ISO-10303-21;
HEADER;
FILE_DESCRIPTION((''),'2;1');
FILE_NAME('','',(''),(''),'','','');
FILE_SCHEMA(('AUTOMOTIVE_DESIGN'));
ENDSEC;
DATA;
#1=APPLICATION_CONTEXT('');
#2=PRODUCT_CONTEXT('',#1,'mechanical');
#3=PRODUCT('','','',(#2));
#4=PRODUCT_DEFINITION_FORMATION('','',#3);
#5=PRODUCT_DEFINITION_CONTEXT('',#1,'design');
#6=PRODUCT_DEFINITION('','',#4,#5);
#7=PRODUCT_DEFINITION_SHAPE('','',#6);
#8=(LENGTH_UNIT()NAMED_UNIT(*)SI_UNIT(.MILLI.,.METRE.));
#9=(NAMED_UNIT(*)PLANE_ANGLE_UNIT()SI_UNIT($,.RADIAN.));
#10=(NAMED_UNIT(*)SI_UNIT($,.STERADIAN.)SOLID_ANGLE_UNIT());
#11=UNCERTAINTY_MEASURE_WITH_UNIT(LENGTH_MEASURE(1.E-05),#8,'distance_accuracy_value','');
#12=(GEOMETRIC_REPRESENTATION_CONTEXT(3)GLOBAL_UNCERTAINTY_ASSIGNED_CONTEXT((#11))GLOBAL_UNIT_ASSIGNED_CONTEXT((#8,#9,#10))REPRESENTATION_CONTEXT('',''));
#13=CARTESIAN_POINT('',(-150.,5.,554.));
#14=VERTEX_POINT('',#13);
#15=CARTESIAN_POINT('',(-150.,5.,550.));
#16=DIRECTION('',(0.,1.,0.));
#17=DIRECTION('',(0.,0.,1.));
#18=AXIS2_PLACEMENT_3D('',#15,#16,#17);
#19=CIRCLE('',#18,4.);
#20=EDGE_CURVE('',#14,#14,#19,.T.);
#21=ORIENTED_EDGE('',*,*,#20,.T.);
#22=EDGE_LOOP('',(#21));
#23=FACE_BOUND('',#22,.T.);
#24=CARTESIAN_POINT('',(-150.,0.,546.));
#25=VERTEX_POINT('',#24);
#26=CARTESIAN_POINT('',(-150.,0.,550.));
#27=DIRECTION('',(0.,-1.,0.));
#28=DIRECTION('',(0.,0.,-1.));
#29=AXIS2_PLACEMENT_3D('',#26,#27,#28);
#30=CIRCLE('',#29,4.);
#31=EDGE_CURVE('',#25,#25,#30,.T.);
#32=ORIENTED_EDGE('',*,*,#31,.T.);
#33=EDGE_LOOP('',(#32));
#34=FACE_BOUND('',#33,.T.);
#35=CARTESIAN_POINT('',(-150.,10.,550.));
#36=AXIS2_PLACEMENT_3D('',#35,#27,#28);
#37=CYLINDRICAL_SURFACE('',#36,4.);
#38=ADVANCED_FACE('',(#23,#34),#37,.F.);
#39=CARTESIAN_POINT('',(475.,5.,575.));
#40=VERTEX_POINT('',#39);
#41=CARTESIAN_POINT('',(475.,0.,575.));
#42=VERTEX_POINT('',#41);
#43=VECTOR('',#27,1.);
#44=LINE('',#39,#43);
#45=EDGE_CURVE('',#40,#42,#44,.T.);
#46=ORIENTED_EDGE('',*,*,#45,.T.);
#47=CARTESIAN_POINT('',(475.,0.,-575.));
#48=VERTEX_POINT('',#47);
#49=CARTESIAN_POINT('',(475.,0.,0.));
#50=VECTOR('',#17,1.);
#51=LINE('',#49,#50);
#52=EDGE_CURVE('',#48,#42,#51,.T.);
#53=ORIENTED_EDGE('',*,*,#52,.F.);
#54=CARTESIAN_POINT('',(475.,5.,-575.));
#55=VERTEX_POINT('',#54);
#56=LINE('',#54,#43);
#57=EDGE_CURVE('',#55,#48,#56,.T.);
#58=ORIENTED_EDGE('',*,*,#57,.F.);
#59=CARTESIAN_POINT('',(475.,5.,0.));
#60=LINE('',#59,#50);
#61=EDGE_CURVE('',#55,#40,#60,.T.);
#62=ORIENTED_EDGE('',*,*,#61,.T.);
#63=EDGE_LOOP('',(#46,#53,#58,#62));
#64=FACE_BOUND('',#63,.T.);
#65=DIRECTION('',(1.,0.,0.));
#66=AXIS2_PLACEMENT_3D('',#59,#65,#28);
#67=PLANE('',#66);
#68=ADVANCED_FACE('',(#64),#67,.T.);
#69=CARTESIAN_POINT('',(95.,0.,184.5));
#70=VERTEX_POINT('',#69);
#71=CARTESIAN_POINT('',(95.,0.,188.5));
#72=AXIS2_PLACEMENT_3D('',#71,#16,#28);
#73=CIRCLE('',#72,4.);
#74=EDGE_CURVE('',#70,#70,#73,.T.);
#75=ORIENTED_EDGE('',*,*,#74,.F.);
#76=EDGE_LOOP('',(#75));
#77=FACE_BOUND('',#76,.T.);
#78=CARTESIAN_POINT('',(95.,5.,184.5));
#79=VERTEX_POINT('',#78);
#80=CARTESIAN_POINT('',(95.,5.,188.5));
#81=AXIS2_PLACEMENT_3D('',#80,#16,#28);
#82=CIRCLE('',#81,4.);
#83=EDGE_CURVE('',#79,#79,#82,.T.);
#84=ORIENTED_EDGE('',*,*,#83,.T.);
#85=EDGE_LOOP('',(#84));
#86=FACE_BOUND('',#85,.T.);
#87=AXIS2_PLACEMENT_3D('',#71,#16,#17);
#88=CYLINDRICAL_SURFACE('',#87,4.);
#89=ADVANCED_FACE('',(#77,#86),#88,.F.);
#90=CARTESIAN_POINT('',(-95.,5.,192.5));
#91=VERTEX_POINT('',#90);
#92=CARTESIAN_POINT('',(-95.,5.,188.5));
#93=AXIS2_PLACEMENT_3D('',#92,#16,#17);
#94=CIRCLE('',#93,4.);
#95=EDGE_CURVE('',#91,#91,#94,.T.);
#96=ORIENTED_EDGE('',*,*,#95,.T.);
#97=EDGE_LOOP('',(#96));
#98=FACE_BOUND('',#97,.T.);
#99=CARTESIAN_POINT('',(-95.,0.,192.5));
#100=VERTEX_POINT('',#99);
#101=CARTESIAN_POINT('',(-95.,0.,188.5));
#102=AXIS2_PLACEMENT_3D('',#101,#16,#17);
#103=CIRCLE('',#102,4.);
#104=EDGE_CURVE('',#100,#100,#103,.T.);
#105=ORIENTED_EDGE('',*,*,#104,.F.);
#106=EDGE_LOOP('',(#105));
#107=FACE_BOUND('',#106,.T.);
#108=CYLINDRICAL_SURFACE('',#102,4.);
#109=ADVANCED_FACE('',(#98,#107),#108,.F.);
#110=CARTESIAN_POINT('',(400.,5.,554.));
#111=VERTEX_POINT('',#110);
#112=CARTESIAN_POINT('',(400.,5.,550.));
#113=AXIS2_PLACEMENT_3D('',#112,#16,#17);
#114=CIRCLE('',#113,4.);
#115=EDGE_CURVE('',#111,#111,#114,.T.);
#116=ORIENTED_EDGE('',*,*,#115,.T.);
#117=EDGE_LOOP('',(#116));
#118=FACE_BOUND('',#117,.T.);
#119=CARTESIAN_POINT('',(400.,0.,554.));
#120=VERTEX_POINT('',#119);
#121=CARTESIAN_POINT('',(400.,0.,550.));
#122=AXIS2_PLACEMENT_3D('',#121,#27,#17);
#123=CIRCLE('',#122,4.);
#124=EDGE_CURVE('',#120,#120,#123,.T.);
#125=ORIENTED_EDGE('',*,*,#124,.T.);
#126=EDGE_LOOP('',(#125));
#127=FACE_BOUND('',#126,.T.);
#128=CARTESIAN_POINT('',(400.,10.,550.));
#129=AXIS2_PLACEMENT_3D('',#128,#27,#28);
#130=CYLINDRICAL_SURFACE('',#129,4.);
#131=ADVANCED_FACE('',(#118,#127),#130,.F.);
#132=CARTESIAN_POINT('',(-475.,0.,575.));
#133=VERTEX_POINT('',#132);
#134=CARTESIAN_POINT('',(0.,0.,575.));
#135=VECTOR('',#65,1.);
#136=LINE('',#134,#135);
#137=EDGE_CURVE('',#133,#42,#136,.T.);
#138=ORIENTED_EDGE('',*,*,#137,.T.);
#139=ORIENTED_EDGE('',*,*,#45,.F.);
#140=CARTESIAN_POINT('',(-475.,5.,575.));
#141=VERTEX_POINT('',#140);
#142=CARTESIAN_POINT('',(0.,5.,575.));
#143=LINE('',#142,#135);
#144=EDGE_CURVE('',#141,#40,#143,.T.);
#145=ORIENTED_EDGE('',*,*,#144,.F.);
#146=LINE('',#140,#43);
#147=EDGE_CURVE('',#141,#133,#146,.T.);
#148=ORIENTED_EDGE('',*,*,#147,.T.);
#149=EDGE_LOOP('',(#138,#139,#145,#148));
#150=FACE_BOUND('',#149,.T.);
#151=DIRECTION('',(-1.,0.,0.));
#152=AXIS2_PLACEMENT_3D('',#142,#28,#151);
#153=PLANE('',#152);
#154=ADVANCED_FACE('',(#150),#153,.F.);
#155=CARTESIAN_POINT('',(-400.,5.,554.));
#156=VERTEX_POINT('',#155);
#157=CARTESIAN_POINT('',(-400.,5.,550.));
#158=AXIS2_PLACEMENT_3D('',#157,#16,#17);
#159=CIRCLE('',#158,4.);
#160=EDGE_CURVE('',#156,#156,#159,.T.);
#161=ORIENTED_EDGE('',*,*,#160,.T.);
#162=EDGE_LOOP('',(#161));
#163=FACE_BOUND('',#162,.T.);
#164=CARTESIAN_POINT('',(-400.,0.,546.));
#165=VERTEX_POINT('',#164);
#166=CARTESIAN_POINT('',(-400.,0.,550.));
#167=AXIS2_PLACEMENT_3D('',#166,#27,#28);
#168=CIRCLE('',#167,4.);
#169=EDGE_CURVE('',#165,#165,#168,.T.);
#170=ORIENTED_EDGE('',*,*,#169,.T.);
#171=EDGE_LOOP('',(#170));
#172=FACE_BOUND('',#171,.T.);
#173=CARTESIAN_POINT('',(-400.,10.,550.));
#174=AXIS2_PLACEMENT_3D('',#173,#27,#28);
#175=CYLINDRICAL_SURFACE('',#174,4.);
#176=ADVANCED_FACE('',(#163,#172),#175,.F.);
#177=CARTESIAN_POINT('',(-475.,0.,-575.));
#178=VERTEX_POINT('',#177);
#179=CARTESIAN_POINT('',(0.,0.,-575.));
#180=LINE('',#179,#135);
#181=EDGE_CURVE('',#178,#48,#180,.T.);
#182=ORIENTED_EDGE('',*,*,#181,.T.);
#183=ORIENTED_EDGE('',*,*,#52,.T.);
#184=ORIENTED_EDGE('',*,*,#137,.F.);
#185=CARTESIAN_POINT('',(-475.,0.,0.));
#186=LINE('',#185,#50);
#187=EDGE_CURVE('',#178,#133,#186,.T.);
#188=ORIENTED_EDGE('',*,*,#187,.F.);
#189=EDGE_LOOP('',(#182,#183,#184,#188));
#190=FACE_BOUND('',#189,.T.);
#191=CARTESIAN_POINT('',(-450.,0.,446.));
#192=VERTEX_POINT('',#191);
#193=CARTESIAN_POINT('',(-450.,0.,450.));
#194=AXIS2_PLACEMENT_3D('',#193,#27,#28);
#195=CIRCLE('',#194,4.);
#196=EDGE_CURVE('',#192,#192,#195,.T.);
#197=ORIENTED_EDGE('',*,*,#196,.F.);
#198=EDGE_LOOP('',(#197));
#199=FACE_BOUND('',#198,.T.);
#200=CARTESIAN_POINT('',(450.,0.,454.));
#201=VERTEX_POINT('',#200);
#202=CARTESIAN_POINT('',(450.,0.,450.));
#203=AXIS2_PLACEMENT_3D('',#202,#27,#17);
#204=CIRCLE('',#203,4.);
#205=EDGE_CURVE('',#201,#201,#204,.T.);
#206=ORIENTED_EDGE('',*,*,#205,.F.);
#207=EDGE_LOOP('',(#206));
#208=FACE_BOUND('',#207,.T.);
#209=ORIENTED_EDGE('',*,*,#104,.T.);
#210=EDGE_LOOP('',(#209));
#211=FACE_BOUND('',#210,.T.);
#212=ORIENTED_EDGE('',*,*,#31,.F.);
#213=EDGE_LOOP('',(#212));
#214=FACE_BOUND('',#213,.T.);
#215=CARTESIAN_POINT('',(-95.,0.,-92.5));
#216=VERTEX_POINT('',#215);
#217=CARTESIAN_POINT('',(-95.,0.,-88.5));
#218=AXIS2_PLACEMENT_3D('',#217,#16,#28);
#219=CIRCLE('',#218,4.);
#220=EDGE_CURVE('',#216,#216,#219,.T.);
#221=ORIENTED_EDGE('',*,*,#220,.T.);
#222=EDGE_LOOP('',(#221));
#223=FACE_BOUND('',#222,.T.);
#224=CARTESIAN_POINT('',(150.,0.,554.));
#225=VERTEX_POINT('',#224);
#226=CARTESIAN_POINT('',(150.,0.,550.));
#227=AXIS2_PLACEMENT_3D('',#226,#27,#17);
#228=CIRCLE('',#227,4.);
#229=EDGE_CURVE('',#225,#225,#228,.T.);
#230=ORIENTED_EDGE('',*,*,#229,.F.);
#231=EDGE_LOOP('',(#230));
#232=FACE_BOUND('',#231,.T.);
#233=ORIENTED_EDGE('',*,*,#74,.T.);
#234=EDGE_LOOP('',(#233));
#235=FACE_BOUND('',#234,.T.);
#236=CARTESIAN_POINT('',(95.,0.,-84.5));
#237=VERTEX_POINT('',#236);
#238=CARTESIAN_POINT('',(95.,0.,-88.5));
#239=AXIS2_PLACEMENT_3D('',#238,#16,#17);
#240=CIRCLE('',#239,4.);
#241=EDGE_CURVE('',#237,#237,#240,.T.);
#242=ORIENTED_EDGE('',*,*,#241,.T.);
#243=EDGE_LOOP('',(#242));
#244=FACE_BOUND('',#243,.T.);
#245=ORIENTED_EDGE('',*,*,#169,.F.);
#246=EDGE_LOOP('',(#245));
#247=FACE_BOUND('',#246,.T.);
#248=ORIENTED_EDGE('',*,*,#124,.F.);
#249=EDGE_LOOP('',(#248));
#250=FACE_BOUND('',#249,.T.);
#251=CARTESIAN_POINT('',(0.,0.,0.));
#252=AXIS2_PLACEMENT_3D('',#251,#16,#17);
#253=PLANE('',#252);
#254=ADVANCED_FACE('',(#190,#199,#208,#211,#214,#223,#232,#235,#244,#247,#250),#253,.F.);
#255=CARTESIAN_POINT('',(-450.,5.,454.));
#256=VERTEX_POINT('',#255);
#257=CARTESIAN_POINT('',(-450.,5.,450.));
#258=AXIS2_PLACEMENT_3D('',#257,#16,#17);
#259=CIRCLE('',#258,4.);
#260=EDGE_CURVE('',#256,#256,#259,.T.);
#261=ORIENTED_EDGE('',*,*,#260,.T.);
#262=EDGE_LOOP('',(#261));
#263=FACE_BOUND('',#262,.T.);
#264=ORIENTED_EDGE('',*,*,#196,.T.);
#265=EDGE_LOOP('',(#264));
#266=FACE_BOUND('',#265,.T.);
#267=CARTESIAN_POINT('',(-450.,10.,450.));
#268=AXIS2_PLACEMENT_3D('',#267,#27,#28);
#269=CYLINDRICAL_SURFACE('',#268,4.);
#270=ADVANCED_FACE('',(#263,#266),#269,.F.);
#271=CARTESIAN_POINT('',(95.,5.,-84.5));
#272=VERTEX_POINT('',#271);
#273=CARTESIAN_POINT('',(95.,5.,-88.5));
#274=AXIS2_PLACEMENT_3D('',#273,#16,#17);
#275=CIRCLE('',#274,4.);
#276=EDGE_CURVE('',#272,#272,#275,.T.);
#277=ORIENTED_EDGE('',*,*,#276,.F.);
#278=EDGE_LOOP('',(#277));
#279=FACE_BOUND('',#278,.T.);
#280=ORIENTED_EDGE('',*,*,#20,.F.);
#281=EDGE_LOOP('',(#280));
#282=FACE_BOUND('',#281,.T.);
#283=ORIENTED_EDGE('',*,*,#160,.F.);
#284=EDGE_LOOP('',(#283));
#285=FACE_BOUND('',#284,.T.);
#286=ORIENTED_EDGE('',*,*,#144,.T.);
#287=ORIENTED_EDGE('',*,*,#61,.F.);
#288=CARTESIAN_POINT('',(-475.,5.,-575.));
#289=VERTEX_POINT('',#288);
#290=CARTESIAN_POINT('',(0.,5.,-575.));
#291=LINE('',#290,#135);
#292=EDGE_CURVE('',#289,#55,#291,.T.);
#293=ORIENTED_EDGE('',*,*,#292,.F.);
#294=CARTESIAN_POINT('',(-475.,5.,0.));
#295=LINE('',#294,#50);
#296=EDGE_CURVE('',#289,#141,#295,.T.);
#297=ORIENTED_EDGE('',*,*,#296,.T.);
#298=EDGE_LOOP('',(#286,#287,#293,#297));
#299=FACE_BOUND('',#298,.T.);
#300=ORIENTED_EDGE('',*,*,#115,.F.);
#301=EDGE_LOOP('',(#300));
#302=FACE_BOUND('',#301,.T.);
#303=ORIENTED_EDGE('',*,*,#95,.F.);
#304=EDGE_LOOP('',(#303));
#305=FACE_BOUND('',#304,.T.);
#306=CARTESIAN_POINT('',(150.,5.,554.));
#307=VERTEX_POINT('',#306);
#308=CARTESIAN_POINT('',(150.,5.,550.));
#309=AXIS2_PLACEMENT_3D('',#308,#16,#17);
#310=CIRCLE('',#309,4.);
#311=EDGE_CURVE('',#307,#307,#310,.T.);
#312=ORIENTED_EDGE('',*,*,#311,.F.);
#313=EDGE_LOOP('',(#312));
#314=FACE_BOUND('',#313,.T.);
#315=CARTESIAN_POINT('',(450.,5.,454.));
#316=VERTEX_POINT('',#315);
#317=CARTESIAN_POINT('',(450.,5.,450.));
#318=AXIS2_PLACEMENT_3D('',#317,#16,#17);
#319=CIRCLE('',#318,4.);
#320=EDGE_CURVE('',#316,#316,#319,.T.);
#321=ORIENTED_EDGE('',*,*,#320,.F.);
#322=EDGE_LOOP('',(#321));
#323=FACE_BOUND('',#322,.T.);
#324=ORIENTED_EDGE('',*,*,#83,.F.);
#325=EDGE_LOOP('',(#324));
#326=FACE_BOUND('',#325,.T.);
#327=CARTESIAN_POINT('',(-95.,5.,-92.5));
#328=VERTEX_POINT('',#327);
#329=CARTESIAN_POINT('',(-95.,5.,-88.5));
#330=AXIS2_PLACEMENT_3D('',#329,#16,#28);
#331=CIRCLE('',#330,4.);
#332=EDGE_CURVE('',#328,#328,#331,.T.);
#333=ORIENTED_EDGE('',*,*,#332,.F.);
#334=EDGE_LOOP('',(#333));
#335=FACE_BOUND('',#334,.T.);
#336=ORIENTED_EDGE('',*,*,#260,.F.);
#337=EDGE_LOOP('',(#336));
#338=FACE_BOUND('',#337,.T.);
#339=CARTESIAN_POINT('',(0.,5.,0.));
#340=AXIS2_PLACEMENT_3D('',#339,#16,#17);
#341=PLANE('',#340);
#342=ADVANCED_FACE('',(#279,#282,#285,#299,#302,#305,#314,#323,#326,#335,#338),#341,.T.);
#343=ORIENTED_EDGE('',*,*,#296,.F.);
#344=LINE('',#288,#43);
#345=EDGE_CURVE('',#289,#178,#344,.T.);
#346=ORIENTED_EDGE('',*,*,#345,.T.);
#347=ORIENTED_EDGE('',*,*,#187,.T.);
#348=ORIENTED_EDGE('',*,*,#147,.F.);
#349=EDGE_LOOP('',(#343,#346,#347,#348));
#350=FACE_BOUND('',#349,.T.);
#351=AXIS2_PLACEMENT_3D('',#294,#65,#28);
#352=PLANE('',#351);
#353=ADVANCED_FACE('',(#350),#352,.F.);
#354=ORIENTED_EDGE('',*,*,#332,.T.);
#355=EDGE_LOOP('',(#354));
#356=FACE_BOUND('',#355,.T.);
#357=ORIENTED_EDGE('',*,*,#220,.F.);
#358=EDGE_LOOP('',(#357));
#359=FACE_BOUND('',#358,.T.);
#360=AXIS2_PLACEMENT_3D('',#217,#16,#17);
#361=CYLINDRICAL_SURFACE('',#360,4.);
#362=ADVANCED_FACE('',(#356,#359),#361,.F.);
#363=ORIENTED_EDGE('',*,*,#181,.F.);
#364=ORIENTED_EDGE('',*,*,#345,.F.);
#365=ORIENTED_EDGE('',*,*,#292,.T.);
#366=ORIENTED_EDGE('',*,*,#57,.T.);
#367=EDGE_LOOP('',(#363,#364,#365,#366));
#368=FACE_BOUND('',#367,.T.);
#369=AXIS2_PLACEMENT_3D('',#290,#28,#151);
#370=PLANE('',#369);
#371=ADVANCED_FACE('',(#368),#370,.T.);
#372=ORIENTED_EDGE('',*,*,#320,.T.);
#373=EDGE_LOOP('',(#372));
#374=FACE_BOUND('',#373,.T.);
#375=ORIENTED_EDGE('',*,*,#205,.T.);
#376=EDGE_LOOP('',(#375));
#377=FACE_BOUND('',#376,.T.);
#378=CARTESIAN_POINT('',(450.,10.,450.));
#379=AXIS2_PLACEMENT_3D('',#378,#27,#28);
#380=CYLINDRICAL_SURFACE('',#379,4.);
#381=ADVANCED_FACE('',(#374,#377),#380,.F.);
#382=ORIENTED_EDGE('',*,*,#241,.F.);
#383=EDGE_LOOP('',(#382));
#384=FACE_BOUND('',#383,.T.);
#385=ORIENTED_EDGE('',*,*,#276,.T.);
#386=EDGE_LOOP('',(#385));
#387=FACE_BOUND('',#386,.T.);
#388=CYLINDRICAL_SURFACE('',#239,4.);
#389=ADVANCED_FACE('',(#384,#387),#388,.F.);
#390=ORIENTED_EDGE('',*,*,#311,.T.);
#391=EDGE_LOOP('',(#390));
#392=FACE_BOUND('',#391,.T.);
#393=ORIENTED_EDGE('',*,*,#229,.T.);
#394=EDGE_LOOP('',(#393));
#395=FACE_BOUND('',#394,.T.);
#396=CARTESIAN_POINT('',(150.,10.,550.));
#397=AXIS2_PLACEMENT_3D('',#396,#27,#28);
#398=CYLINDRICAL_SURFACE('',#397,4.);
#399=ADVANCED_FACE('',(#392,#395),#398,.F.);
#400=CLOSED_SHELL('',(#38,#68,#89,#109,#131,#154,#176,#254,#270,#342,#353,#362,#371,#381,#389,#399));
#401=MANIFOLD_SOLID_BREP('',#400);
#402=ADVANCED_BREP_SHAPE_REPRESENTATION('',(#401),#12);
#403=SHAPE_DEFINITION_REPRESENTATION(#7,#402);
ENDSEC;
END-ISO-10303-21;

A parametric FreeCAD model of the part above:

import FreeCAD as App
import Part
import Sketcher
Q = App.Units.Quantity


def add_polygon(sketch, points):
    """Adds a closed chain of lines whose ends are joined by coincident constraints."""
    first, n = sketch.GeometryCount, len(points)
    for a, b in zip(points, points[1:] + points[:1]):
        sketch.addGeometry(Part.LineSegment(App.Vector(*a, 0), App.Vector(*b, 0)), False)
    for i in range(n):
        sketch.addConstraint(Sketcher.Constraint("Coincident", first + i, 2, first + (i + 1) % n, 1))

doc = App.newDocument("Part")
body = doc.addObject("PartDesign::Body", "Body")

# Sketch on XZ plane
sketch1 = doc.addObject("Sketcher::SketchObject", "Sketch")
body.addObject(sketch1)
sketch1.AttachmentSupport = (doc.XZ_Plane, [""])
sketch1.MapMode = "FlatFace"
add_polygon(sketch1, [(-475, -575), (-475, 575), (475, 575), (475, -575)])  # lines 0-3
sketch1.addConstraint(Sketcher.Constraint("Vertical", 0))
sketch1.addConstraint(Sketcher.Constraint("Horizontal", 1))
sketch1.addConstraint(Sketcher.Constraint("Vertical", 2))
sketch1.addConstraint(Sketcher.Constraint("Horizontal", 3))
sketch1.addConstraint(Sketcher.Constraint("Symmetric", 0, 2, 2, 2, -1, 1))
sketch1.addConstraint(Sketcher.Constraint("DistanceX", 1, 1, 1, 2, Q("950 mm")))
sketch1.addConstraint(Sketcher.Constraint("DistanceY", 0, 1, 0, 2, Q("1150 mm")))
pad1 = doc.addObject("PartDesign::Pad", "Pad")
body.addObject(pad1)
pad1.Profile = sketch1
pad1.Length = 5
pad1.Reversed = True

# Sketch on XZ plane
sketch2 = doc.addObject("Sketcher::SketchObject", "Sketch001")
body.addObject(sketch2)
sketch2.AttachmentSupport = (doc.XZ_Plane, [""])
sketch2.MapMode = "FlatFace"
sketch2.AttachmentOffset = App.Placement(App.Vector(0, 0, -5), App.Rotation())
sketch2.addGeometry(Part.Circle(App.Vector(95, -88.5, 0), App.Vector(0, 0, 1), 4), False)
sketch2.addGeometry(Part.Circle(App.Vector(-95, -88.5, 0), App.Vector(0, 0, 1), 4), False)
sketch2.addGeometry(Part.Circle(App.Vector(95, 188.5, 0), App.Vector(0, 0, 1), 4), False)
sketch2.addGeometry(Part.Circle(App.Vector(-95, 188.5, 0), App.Vector(0, 0, 1), 4), False)
sketch2.addConstraint(Sketcher.Constraint("Equal", 0, 1))
sketch2.addConstraint(Sketcher.Constraint("Equal", 1, 2))
sketch2.addConstraint(Sketcher.Constraint("Equal", 2, 3))
sketch2.addConstraint(Sketcher.Constraint("Symmetric", 0, 3, 1, 3, -2))
sketch2.addConstraint(Sketcher.Constraint("Symmetric", 2, 3, 3, 3, -2))
sketch2.addConstraint(Sketcher.Constraint("Vertical", 0, 3, 2, 3))
sketch2.addConstraint(Sketcher.Constraint("Diameter", 0, Q("8 mm")))
sketch2.addConstraint(Sketcher.Constraint("DistanceX", -1, 1, 0, 3, Q("95 mm")))
sketch2.addConstraint(Sketcher.Constraint("DistanceY", 0, 3, 2, 3, Q("277 mm")))
sketch2.addConstraint(Sketcher.Constraint("DistanceY", 0, 3, -1, 1, Q("88.5 mm")))
pocket1 = doc.addObject("PartDesign::Pocket", "Pocket")
body.addObject(pocket1)
pocket1.Profile = sketch2
pocket1.Type = "ThroughAll"
pocket1.Reversed = True

# Sketch on XZ plane
sketch3 = doc.addObject("Sketcher::SketchObject", "Sketch002")
body.addObject(sketch3)
sketch3.AttachmentSupport = (doc.XZ_Plane, [""])
sketch3.MapMode = "FlatFace"
sketch3.addGeometry(Part.Circle(App.Vector(-400, 550, 0), App.Vector(0, 0, 1), 4), False)
sketch3.addGeometry(Part.Circle(App.Vector(-450, 450, 0), App.Vector(0, 0, 1), 4), False)
sketch3.addGeometry(Part.Circle(App.Vector(-150, 550, 0), App.Vector(0, 0, 1), 4), False)
sketch3.addGeometry(Part.Circle(App.Vector(450, 450, 0), App.Vector(0, 0, 1), 4), False)
sketch3.addGeometry(Part.Circle(App.Vector(150, 550, 0), App.Vector(0, 0, 1), 4), False)
sketch3.addGeometry(Part.Circle(App.Vector(400, 550, 0), App.Vector(0, 0, 1), 4), False)
sketch3.addConstraint(Sketcher.Constraint("Equal", 0, 1))
sketch3.addConstraint(Sketcher.Constraint("Equal", 1, 2))
sketch3.addConstraint(Sketcher.Constraint("Equal", 2, 3))
sketch3.addConstraint(Sketcher.Constraint("Equal", 3, 4))
sketch3.addConstraint(Sketcher.Constraint("Equal", 4, 5))
sketch3.addConstraint(Sketcher.Constraint("Symmetric", 1, 3, 3, 3, -2))
sketch3.addConstraint(Sketcher.Constraint("Symmetric", 2, 3, 4, 3, -2))
sketch3.addConstraint(Sketcher.Constraint("Symmetric", 0, 3, 5, 3, -2))
sketch3.addConstraint(Sketcher.Constraint("Horizontal", 0, 3, 2, 3))
sketch3.addConstraint(Sketcher.Constraint("Diameter", 0, Q("8 mm")))
sketch3.addConstraint(Sketcher.Constraint("DistanceX", 0, 3, -1, 1, Q("400 mm")))
sketch3.addConstraint(Sketcher.Constraint("DistanceY", -1, 1, 0, 3, Q("550 mm")))
sketch3.addConstraint(Sketcher.Constraint("DistanceX", 1, 3, -1, 1, Q("450 mm")))
sketch3.addConstraint(Sketcher.Constraint("DistanceY", -1, 1, 1, 3, Q("450 mm")))
sketch3.addConstraint(Sketcher.Constraint("DistanceX", 2, 3, -1, 1, Q("150 mm")))
pocket2 = doc.addObject("PartDesign::Pocket", "Pocket001")
body.addObject(pocket2)
pocket2.Profile = sketch3
pocket2.Length = 10

doc.recompute()
